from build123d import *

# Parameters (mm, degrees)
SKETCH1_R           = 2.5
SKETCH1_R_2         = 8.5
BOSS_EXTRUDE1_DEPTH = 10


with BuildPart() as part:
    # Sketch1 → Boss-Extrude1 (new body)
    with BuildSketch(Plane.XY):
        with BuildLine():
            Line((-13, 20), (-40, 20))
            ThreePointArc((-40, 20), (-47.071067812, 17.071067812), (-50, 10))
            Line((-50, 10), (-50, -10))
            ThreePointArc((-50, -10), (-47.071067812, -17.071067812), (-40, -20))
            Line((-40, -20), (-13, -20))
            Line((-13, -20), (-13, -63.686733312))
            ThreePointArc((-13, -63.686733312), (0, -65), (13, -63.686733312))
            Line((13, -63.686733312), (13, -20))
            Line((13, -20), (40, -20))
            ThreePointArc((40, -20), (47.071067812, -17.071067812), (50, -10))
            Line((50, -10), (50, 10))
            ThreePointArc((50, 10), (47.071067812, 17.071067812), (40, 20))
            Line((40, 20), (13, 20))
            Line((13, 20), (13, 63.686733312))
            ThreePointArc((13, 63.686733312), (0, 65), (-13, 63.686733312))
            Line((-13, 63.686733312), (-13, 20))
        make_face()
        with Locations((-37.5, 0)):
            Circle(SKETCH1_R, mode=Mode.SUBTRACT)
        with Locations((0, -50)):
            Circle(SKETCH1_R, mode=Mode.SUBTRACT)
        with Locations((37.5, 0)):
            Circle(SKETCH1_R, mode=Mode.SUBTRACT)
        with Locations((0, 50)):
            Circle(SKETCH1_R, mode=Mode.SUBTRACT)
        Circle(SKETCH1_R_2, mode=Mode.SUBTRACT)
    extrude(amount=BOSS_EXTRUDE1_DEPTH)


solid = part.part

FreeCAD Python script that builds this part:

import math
import FreeCAD as App
import Part
import Sketcher

V = App.Vector
Q = App.Units.Quantity

doc = App.newDocument("Part")
params = doc.addObject("Spreadsheet::Sheet", "Params")
for row, (alias, value) in enumerate([
    ("sketch1_diameter", "5 mm"),
    ("sketch1_diameter2", "17 mm"),
    ("sketch1_radius", "10 mm"),
    ("sketch1_radius2", "65 mm"),
    ("sketch1_width", "27 mm"),
    ("pad1_length", "10 mm"),
], start=1):
    params.set(f"A{row}", alias)
    params.set(f"B{row}", "=" + value)
    params.setAlias(f"B{row}", alias)

body = doc.addObject("PartDesign::Body", "Body")

sketch1 = body.newObject("Sketcher::SketchObject", "Sketch")
sketch1.AttachmentSupport = (doc.getObject("XY_Plane"), [""])
sketch1.MapMode = "FlatFace"
sketch1.addGeometry([
    Part.LineSegment(V(-13, 20, 0), V(-40, 20, 0)),
    Part.ArcOfCircle(Part.Circle(V(-40, 10, 0), V(0, 0, 1), 10), math.radians(90), math.radians(180)),
    Part.LineSegment(V(-50, 10, 0), V(-50, -10, 0)),
    Part.ArcOfCircle(Part.Circle(V(-40, -10, 0), V(0, 0, 1), 10), math.radians(180), math.radians(270)),
    Part.LineSegment(V(-40, -20, 0), V(-13, -20, 0)),
    Part.LineSegment(V(-13, -20, 0), V(-13, -63.686733, 0)),
    Part.ArcOfCircle(Part.Circle(V(0, 0, 0), V(0, 0, 1), 65), math.radians(-101.536959), math.radians(-78.463041)),
    Part.LineSegment(V(13, -63.686733, 0), V(13, -20, 0)),
    Part.LineSegment(V(13, -20, 0), V(40, -20, 0)),
    Part.ArcOfCircle(Part.Circle(V(40, -10, 0), V(0, 0, 1), 10), math.radians(-90), math.radians(0)),
    Part.LineSegment(V(50, -10, 0), V(50, 10, 0)),
    Part.ArcOfCircle(Part.Circle(V(40, 10, 0), V(0, 0, 1), 10), math.radians(0), math.radians(90)),
    Part.LineSegment(V(40, 20, 0), V(13, 20, 0)),
    Part.LineSegment(V(13, 20, 0), V(13, 63.686733, 0)),
    Part.ArcOfCircle(Part.Circle(V(0, 0, 0), V(0, 0, 1), 65), math.radians(78.463041), math.radians(101.536959)),
    Part.LineSegment(V(-13, 63.686733, 0), V(-13, 20, 0)),
    Part.Circle(V(0, -50, 0), V(0, 0, 1), 2.5),
    Part.Circle(V(-37.5, 0, 0), V(0, 0, 1), 2.5),
    Part.Circle(V(0, 0, 0), V(0, 0, 1), 8.5),
    Part.Circle(V(37.5, 0, 0), V(0, 0, 1), 2.5),
    Part.Circle(V(0, 50, 0), V(0, 0, 1), 2.5),
], False)
sketch1.addConstraint([
    Sketcher.Constraint("Tangent", 0, 2, 1, 1),
    Sketcher.Constraint("Tangent", 1, 2, 2, 1),
    Sketcher.Constraint("Tangent", 2, 2, 3, 1),
    Sketcher.Constraint("Tangent", 3, 2, 4, 1),
    Sketcher.Constraint("Coincident", 4, 2, 5, 1),
    Sketcher.Constraint("Coincident", 5, 2, 6, 1),
    Sketcher.Constraint("Coincident", 6, 2, 7, 1),
    Sketcher.Constraint("Coincident", 7, 2, 8, 1),
    Sketcher.Constraint("Tangent", 8, 2, 9, 1),
    Sketcher.Constraint("Tangent", 9, 2, 10, 1),
    Sketcher.Constraint("Tangent", 10, 2, 11, 1),
    Sketcher.Constraint("Tangent", 11, 2, 12, 1),
    Sketcher.Constraint("Coincident", 12, 2, 13, 1),
    Sketcher.Constraint("Coincident", 13, 2, 14, 1),
    Sketcher.Constraint("Coincident", 14, 2, 15, 1),
    Sketcher.Constraint("Coincident", 15, 2, 0, 1),
    Sketcher.Constraint("Horizontal", 0),
    Sketcher.Constraint("Vertical", 2),
    Sketcher.Constraint("Horizontal", 4),
    Sketcher.Constraint("Vertical", 5),
    Sketcher.Constraint("Vertical", 7),
    Sketcher.Constraint("Horizontal", 8),
    Sketcher.Constraint("Vertical", 10),
    Sketcher.Constraint("Horizontal", 12),
    Sketcher.Constraint("Vertical", 13),
    Sketcher.Constraint("Vertical", 15),
    Sketcher.Constraint("Coincident", 6, 3, -1, 1),
    Sketcher.Constraint("Coincident", 14, 3, -1, 1),
    Sketcher.Constraint("Coincident", 18, 3, -1, 1),
    Sketcher.Constraint("Equal", 1, 3),
    Sketcher.Constraint("Equal", 3, 9),
    Sketcher.Constraint("Equal", 9, 11),
    Sketcher.Constraint("Equal", 6, 14),
    Sketcher.Constraint("Equal", 16, 17),
    Sketcher.Constraint("Equal", 17, 19),
    Sketcher.Constraint("Equal", 19, 20),
    Sketcher.Constraint("Symmetric", 1, 3, 9, 3, -1, 1),
    Sketcher.Constraint("Symmetric", 17, 3, 19, 3, -1, 1),
    Sketcher.Constraint("Symmetric", 16, 3, 20, 3, -1, 1),
    Sketcher.Constraint("Symmetric", 4, 2, 12, 2, -1, 1),
    Sketcher.Constraint("Symmetric", 4, 2, 7, 2, -2),
    Sketcher.Constraint("PointOnObject", 16, 3, -2),
    Sketcher.Constraint("PointOnObject", 17, 3, -1),
    Sketcher.Constraint("Horizontal", 13, 2, 14, 2),
    Sketcher.Constraint("Diameter", 16, Q("5 mm")),
    Sketcher.Constraint("Diameter", 18, Q("17 mm")),
    Sketcher.Constraint("Radius", 1, Q("10 mm")),
    Sketcher.Constraint("Radius", 6, Q("65 mm")),
    Sketcher.Constraint("DistanceX", 0, 2, 0, 1, Q("27 mm")),
    Sketcher.Constraint("DistanceY", 2, 2, 2, 1, Q("20 mm")),
    Sketcher.Constraint("DistanceX", 1, 3, -1, 1, Q("40 mm")),
    Sketcher.Constraint("DistanceY", 16, 3, -1, 1, Q("50 mm")),
    Sketcher.Constraint("DistanceX", 17, 3, -1, 1, Q("37.5 mm")),
])
sketch1.setExpression("Constraints[44]", "Params.sketch1_diameter")
sketch1.setExpression("Constraints[45]", "Params.sketch1_diameter2")
sketch1.setExpression("Constraints[46]", "Params.sketch1_radius")
sketch1.setExpression("Constraints[47]", "Params.sketch1_radius2")
sketch1.setExpression("Constraints[48]", "Params.sketch1_width")
pad1 = body.newObject("PartDesign::Pad", "Pad")
pad1.Profile = sketch1
pad1.setExpression("Length", "Params.pad1_length")

doc.recompute()
